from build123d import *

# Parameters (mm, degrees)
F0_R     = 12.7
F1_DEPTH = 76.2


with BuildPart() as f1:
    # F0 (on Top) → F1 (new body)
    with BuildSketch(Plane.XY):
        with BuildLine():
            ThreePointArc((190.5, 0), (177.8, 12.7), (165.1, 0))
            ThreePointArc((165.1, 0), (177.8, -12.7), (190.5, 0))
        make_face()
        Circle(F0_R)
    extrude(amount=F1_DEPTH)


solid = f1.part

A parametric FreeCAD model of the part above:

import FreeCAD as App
import Part
import Sketcher
Q = App.Units.Quantity

doc = App.newDocument("Part")
body = doc.addObject("PartDesign::Body", "Body")
body.AllowCompound = True

# Sketch on XY plane
sketch1 = body.newObject("Sketcher::SketchObject", "Sketch")
sketch1.AttachmentSupport = (doc.getObject("XY_Plane"), [""])
sketch1.MapMode = "FlatFace"
sketch1.addGeometry(Part.Circle(App.Vector(178, 0, 0), App.Vector(0, 0, 1), 13), False)
sketch1.addGeometry(Part.Circle(App.Vector(0, 0, 0), App.Vector(0, 0, 1), 13), False)
sketch1.addConstraint(Sketcher.Constraint("Coincident", 1, 3, -1, 1))
sketch1.addConstraint(Sketcher.Constraint("Equal", 0, 1))
sketch1.addConstraint(Sketcher.Constraint("PointOnObject", 0, 3, -1))
sketch1.addConstraint(Sketcher.Constraint("Diameter", 0, Q("1 in")))
sketch1.addConstraint(Sketcher.Constraint("DistanceX", -1, 1, 0, 3, Q("7 in")))
pad1 = body.newObject("PartDesign::Pad", "Pad")
pad1.Profile = sketch1
pad1.Length = Q("3 in")

doc.recompute()
